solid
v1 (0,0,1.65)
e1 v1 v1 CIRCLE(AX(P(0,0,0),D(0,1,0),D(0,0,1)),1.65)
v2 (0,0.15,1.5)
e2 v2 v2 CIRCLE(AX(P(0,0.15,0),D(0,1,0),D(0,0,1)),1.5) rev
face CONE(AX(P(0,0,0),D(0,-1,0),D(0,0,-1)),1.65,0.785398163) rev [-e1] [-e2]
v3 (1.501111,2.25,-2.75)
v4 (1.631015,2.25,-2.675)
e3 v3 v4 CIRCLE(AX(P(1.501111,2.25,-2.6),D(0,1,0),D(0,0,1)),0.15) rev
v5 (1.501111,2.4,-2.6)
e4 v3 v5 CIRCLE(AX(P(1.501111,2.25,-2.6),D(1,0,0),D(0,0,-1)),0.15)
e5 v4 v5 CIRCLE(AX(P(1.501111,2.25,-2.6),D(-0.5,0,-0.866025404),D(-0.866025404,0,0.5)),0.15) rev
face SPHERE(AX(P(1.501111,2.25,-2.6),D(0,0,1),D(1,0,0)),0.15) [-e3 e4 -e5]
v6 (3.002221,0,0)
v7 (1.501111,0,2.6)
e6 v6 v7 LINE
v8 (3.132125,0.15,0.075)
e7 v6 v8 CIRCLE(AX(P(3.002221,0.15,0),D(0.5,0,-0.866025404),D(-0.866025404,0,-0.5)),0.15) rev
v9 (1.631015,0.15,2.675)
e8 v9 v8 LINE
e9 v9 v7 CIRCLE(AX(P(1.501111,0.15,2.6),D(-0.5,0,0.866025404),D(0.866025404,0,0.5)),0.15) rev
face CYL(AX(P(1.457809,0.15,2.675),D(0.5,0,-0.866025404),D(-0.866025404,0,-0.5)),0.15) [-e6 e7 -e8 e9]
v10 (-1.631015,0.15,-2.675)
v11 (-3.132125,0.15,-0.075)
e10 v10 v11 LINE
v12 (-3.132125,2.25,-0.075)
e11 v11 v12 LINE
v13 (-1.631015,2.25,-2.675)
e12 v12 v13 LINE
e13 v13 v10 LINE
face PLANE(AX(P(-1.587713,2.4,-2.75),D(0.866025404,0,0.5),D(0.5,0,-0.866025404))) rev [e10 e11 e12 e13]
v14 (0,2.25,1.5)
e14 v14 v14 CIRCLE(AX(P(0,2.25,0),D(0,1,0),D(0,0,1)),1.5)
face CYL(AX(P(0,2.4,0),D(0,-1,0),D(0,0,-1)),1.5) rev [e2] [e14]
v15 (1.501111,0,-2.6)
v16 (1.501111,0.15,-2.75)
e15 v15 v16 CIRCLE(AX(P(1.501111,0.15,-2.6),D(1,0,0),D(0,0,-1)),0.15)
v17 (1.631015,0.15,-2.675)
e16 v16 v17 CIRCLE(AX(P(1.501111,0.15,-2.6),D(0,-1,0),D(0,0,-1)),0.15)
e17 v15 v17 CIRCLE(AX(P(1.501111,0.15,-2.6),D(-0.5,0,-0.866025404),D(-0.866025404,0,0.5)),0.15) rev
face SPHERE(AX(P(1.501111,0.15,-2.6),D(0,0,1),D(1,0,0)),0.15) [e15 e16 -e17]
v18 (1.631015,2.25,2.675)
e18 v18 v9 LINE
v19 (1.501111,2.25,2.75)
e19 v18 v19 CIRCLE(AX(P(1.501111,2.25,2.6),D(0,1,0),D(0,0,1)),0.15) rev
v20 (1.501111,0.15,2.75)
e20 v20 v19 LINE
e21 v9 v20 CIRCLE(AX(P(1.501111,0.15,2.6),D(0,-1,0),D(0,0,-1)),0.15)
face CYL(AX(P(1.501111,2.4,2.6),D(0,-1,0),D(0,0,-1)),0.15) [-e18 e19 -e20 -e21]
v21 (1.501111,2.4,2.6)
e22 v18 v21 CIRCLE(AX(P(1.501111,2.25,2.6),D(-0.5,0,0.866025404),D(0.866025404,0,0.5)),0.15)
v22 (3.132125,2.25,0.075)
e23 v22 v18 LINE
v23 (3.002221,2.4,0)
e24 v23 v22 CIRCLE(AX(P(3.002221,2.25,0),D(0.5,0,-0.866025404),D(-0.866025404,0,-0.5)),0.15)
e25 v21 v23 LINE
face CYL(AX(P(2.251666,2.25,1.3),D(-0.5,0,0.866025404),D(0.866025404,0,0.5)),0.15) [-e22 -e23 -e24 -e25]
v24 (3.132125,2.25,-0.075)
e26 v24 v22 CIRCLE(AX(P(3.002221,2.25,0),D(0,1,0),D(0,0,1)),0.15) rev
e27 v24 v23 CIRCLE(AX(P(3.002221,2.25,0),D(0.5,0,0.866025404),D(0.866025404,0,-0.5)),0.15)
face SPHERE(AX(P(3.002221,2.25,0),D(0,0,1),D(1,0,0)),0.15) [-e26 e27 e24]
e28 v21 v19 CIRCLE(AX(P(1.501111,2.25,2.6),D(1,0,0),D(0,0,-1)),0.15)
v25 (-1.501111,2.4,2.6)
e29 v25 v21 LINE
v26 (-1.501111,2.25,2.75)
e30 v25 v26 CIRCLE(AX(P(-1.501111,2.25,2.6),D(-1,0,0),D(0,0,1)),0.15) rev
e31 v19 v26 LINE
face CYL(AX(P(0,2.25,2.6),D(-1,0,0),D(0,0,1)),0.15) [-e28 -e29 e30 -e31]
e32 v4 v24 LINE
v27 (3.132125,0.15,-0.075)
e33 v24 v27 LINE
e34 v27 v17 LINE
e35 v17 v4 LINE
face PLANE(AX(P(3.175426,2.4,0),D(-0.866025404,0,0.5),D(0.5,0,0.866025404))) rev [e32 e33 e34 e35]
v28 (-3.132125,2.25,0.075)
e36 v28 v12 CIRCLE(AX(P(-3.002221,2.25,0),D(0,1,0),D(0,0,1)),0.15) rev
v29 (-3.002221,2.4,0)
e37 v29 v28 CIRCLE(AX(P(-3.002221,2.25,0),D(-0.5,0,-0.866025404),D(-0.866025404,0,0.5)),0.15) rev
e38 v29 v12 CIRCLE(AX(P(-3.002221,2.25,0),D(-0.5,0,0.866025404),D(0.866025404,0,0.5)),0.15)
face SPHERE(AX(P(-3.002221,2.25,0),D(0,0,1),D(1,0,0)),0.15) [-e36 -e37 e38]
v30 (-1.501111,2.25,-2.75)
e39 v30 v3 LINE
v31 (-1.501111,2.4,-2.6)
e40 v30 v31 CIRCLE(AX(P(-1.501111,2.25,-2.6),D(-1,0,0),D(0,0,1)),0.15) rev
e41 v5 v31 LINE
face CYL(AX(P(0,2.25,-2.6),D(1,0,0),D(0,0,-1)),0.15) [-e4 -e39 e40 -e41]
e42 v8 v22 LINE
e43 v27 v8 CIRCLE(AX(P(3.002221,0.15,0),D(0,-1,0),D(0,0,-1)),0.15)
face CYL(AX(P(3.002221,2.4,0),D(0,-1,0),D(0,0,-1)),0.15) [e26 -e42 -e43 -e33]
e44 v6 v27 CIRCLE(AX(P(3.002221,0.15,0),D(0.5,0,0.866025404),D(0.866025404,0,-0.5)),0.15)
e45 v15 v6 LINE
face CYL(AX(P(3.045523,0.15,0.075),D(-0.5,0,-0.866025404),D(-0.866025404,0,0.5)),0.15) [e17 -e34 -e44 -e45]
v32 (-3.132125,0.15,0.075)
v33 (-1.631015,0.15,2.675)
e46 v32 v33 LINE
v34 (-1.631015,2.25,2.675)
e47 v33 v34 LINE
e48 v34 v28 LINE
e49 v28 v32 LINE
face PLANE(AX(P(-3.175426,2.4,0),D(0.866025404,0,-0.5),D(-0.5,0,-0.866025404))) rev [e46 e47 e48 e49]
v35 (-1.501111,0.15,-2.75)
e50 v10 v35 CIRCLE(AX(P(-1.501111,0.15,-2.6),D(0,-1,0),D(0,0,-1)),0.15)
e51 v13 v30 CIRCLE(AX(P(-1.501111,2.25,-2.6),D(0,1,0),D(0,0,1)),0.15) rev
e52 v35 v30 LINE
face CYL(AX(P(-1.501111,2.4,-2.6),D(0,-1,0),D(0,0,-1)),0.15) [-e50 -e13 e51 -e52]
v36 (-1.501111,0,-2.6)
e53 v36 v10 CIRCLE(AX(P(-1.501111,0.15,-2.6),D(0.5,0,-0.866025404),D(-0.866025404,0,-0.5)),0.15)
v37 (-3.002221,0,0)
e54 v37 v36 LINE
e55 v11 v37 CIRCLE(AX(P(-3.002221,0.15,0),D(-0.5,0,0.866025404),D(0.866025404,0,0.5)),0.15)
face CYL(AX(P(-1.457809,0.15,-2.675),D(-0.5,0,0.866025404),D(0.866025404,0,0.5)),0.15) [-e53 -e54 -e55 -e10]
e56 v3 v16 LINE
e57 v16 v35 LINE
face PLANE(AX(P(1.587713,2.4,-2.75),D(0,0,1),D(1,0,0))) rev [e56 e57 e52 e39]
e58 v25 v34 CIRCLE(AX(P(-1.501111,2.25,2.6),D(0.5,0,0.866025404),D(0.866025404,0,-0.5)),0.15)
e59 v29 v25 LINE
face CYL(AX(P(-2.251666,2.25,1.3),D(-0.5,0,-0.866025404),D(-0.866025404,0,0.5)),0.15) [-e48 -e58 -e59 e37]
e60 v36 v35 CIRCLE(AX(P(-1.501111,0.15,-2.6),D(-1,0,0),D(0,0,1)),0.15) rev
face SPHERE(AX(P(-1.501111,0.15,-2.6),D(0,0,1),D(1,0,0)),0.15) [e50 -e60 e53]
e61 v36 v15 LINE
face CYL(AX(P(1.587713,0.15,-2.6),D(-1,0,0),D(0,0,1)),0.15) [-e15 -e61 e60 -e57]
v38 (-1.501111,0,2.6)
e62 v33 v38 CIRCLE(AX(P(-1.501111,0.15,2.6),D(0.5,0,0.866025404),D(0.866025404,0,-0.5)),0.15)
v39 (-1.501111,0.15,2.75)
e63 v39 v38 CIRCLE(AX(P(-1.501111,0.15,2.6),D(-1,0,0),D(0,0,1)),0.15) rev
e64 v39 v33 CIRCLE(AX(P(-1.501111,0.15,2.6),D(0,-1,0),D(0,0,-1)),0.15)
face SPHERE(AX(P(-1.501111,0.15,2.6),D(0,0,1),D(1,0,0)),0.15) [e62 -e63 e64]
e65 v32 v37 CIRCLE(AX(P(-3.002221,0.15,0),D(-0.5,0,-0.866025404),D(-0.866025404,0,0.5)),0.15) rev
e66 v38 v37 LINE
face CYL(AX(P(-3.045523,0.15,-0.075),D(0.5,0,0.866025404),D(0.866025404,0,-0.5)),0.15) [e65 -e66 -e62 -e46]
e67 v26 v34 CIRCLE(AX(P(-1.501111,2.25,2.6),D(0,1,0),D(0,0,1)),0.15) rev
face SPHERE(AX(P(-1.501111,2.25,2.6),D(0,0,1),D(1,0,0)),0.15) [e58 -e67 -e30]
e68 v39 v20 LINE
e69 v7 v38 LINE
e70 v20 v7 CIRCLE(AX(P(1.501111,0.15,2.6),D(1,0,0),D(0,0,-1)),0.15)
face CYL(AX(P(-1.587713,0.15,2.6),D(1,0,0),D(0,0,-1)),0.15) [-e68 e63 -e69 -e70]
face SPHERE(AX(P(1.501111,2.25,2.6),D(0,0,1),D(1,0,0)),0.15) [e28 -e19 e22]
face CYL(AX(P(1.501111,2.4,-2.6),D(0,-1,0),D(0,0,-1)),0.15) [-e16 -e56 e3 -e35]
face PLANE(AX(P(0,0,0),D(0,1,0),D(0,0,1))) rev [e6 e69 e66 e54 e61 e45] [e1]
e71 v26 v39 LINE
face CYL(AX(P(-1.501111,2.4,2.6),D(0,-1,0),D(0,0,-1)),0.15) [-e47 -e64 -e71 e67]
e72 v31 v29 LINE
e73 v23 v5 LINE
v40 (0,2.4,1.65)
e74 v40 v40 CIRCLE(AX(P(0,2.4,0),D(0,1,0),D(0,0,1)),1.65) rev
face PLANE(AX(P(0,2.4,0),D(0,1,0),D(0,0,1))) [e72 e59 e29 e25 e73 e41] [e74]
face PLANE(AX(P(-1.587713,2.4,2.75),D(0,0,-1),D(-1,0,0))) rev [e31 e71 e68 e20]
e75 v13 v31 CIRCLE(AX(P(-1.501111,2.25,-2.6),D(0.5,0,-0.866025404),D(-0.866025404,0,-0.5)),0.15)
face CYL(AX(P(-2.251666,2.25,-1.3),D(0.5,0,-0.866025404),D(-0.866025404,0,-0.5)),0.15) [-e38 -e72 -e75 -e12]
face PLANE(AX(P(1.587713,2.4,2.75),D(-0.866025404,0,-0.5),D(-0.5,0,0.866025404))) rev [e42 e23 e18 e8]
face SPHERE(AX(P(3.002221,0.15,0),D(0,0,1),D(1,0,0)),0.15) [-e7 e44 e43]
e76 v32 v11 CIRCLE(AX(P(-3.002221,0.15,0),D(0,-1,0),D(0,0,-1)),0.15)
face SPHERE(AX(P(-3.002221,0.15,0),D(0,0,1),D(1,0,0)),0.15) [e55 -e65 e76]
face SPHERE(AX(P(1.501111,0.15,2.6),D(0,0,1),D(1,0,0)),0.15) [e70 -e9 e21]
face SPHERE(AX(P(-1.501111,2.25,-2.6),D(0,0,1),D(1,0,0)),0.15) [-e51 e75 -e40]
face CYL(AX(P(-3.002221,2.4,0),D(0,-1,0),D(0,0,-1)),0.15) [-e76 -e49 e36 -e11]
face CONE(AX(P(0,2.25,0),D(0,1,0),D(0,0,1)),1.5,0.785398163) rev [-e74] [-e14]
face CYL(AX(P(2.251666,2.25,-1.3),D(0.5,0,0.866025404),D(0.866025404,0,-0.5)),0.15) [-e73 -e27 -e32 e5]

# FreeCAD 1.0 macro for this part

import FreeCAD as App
import Part
import Sketcher

V = App.Vector
Q = App.Units.Quantity


def edges_at(feature, points):
    """Names of the edges that pass closest to the given points."""
    edges = feature.Shape.Edges
    near = lambda p: min(range(len(edges)), key=lambda i: edges[i].distToShape(Part.Vertex(*p))[0])
    return sorted({f"Edge{near(p) + 1}" for p in points})

doc = App.newDocument("Part")
body = doc.addObject("PartDesign::Body", "Body")

# Sketch on XZ plane
sketch1 = doc.addObject("Sketcher::SketchObject", "Sketch")
body.addObject(sketch1)
sketch1.AttachmentSupport = (doc.XZ_Plane, [""])
sketch1.MapMode = "FlatFace"
sketch1.addGeometry(Part.LineSegment(V(3.2, 0, 0), V(1.6, -2.8, 0)), False)
sketch1.addGeometry(Part.LineSegment(V(1.6, -2.8, 0), V(-1.6, -2.8, 0)), False)
sketch1.addGeometry(Part.LineSegment(V(-1.6, -2.8, 0), V(-3.2, 0, 0)), False)
sketch1.addGeometry(Part.LineSegment(V(-3.2, 0, 0), V(-1.6, 2.8, 0)), False)
sketch1.addGeometry(Part.LineSegment(V(-1.6, 2.8, 0), V(1.6, 2.8, 0)), False)
sketch1.addGeometry(Part.LineSegment(V(1.6, 2.8, 0), V(3.2, 0, 0)), False)
sketch1.addGeometry(Part.Circle(V(0, 0, 0), V(0, 0, 1), 1.5), False)
sketch1.addConstraint(Sketcher.Constraint("Coincident", 0, 2, 1, 1))
sketch1.addConstraint(Sketcher.Constraint("Coincident", 1, 2, 2, 1))
sketch1.addConstraint(Sketcher.Constraint("Coincident", 2, 2, 3, 1))
sketch1.addConstraint(Sketcher.Constraint("Coincident", 3, 2, 4, 1))
sketch1.addConstraint(Sketcher.Constraint("Coincident", 4, 2, 5, 1))
sketch1.addConstraint(Sketcher.Constraint("Coincident", 5, 2, 0, 1))
sketch1.addConstraint(Sketcher.Constraint("Horizontal", 1))
sketch1.addConstraint(Sketcher.Constraint("Horizontal", 4))
sketch1.addConstraint(Sketcher.Constraint("Coincident", 6, 3, -1, 1))
sketch1.addConstraint(Sketcher.Constraint("Symmetric", 0, 2, 3, 2, -1, 1))
sketch1.addConstraint(Sketcher.Constraint("Symmetric", 2, 2, 5, 2, -1, 1))
sketch1.addConstraint(Sketcher.Constraint("PointOnObject", 2, 2, -1))
sketch1.addConstraint(Sketcher.Constraint("Parallel", 2, 5))
sketch1.addConstraint(Sketcher.Constraint("Vertical", 1, 2, 3, 2))
sketch1.addConstraint(Sketcher.Constraint("Diameter", 6, Q("3 mm")))
sketch1.addConstraint(Sketcher.Constraint("Angle", 0, Q("-120 deg")))
sketch1.addConstraint(Sketcher.Constraint("DistanceY", 1, 2, 3, 2, Q("5.5 mm")))
sketch1.addConstraint(Sketcher.Constraint("DistanceX", 1, 2, 1, 1, Q("3.175426 mm")))
pad1 = doc.addObject("PartDesign::Pad", "Pad")
body.addObject(pad1)
pad1.Profile = sketch1
pad1.Length = 2.4
pad1.Reversed = True
doc.recompute()

fillet = doc.addObject("PartDesign::Fillet", "Fillet")
body.addObject(fillet)
fillet.Base = (pad1, edges_at(pad1, [
    (1.588, 1.2, 2.75),
    (-1.588, 1.2, 2.75),
    (-3.175, 1.2, 0),
    (-1.588, 1.2, -2.75),
    (1.588, 1.2, -2.75),
    (3.175, 1.2, 0),
    (0, 2.4, -2.75),
    (-2.382, 2.4, -1.375),
    (-2.382, 2.4, 1.375),
    (0, 2.4, 2.75),
    (2.382, 2.4, 1.375),
    (0, 0, 2.75),
    (-2.382, 0, 1.375),
    (-2.382, 0, -1.375),
    (0, 0, -2.75),
    (2.382, 0, -1.375),
    (2.382, 0, 1.375),
    (2.382, 2.4, -1.375),
]))
fillet.Radius = 0.15
doc.recompute()

chamfer = doc.addObject("PartDesign::Chamfer", "Chamfer")
body.addObject(chamfer)
chamfer.Base = (fillet, edges_at(fillet, [(0, 0, -1.5), (0, 2.4, -1.5)]))
chamfer.Size = 0.15

doc.recompute()
